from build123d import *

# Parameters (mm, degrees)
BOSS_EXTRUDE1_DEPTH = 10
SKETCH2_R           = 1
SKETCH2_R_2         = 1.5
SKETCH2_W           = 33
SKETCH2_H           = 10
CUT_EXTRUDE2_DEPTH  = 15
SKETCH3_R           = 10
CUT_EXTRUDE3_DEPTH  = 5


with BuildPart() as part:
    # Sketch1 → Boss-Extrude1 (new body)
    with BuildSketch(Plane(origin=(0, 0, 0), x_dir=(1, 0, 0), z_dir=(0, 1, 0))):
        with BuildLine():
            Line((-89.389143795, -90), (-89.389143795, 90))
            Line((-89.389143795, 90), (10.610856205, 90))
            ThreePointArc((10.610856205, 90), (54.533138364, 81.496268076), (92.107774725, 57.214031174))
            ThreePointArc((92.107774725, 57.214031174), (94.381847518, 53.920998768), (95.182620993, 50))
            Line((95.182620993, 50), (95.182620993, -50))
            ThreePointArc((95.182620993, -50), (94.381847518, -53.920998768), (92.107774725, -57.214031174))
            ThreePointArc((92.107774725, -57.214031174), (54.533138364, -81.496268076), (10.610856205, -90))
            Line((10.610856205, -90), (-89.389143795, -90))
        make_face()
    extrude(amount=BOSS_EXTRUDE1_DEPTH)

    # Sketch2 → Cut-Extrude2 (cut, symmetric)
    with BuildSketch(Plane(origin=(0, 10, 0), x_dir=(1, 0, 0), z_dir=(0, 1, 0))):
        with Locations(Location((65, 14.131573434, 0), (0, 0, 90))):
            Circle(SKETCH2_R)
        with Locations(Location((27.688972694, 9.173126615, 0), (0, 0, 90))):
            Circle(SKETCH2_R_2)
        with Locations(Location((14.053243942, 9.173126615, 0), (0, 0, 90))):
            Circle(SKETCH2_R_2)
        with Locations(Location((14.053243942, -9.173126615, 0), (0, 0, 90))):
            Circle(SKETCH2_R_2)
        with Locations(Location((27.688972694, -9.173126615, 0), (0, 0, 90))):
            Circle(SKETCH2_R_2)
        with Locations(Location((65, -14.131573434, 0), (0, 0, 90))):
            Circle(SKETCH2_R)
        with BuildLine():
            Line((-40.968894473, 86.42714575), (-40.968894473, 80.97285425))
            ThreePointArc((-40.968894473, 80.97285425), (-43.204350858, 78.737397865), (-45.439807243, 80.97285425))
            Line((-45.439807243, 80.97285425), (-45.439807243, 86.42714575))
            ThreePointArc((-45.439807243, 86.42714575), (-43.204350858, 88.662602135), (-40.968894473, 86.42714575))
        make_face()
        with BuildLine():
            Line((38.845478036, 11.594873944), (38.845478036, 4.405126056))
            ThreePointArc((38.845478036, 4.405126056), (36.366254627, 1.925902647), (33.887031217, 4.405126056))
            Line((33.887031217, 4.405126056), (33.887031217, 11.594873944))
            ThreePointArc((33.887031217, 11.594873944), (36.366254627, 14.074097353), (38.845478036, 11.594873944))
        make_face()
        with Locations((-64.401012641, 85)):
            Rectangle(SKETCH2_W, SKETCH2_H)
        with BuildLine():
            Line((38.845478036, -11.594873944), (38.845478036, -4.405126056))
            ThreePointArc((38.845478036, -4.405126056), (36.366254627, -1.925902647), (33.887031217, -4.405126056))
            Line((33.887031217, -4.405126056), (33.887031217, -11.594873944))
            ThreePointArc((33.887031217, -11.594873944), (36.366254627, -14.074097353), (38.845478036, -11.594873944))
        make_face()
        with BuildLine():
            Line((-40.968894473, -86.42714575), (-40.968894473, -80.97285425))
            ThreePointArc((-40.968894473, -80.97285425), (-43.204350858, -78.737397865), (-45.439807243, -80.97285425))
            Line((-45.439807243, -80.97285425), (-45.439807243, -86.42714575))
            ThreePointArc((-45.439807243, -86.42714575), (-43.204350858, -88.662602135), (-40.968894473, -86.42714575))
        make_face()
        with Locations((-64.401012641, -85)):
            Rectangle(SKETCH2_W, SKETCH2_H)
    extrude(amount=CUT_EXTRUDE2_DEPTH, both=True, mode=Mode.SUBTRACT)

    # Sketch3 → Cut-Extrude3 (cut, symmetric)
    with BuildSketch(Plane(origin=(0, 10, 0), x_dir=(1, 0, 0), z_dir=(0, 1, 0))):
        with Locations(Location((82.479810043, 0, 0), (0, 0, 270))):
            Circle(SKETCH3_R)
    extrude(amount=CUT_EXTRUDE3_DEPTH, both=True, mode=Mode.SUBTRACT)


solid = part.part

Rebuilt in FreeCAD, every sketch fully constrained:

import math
import FreeCAD as App
import Part
import Sketcher

V = App.Vector

doc = App.newDocument("Part")
params = doc.addObject("Spreadsheet::Sheet", "Params")
for row, (alias, value) in enumerate([
    ("sketch1_radius", "10 mm"),
    ("sketch1_width", "100 mm"),
    ("sketch1_height", "180 mm"),
    ("pad1_length", "10 mm"),
    ("sketch2_diameter", "2 mm"),
    ("sketch2_diameter2", "3 mm"),
    ("sketch2_width", "33 mm"),
    ("sketch2_height", "10 mm"),
    ("pocket1_length", "30 mm"),
    ("sketch3_diameter", "20 mm"),
    ("pocket2_length", "10 mm"),
], start=1):
    params.set(f"A{row}", alias)
    params.set(f"B{row}", "=" + value)
    params.setAlias(f"B{row}", alias)

body = doc.addObject("PartDesign::Body", "Body")

# Sketch on XZ plane
sketch1 = body.newObject("Sketcher::SketchObject", "Sketch")
sketch1.AttachmentSupport = (doc.getObject("XZ_Plane"), [""])
sketch1.MapMode = "FlatFace"
sketch1.addGeometry([
    Part.LineSegment(V(-89, -90, 0), V(-89, 90, 0)),  # 0
    Part.LineSegment(V(-89, 90, 0), V(11, 90, 0)),  # 1
    Part.ArcOfCircle(Part.Circle(V(11, -28, 0), V(0, 0, 1), 118), math.radians(46), math.radians(90)),  # 2
    Part.ArcOfCircle(Part.Circle(V(85, 50, 0), V(0, 0, 1), 10), math.radians(0), math.radians(46)),  # 3
    Part.LineSegment(V(95, 50, 0), V(95, -50, 0)),  # 4
    Part.ArcOfCircle(Part.Circle(V(85, -50, 0), V(0, 0, 1), 10), math.radians(-46), math.radians(0)),  # 5
    Part.ArcOfCircle(Part.Circle(V(11, 28, 0), V(0, 0, 1), 118), math.radians(-90), math.radians(-46)),  # 6
    Part.LineSegment(V(11, -90, 0), V(-89, -90, 0)),  # 7
], False)
sketch1.addConstraint([
    Sketcher.Constraint("Coincident", 0, 2, 1, 1),
    Sketcher.Constraint("Tangent", 1, 2, 2, 2),
    Sketcher.Constraint("Tangent", 2, 1, 3, 2),
    Sketcher.Constraint("Tangent", 3, 1, 4, 1),
    Sketcher.Constraint("Tangent", 4, 2, 5, 2),
    Sketcher.Constraint("Tangent", 5, 1, 6, 2),
    Sketcher.Constraint("Tangent", 6, 1, 7, 1),
    Sketcher.Constraint("Coincident", 7, 2, 0, 1),
    Sketcher.Constraint("Vertical", 0),
    Sketcher.Constraint("Horizontal", 1),
    Sketcher.Constraint("Vertical", 4),
    Sketcher.Constraint("Horizontal", 7),
    Sketcher.Constraint("Equal", 3, 5),
    Sketcher.Constraint("Equal", 2, 6),
    Sketcher.Constraint("Symmetric", 2, 3, 6, 3, -1),
    Sketcher.Constraint("Equal", 7, 4),
    Sketcher.Constraint("Radius", 3, 10.0),
    Sketcher.Constraint("DistanceX", 1, 1, 1, 2, 100.0),
    Sketcher.Constraint("DistanceY", 0, 1, 0, 2, 180.0),
    Sketcher.Constraint("Radius", 2, 117.682468),
    Sketcher.Constraint("DistanceX", -1, 1, 3, 3, 85.182621),
])
sketch1.setExpression("Constraints[16]", "Params.sketch1_radius")
sketch1.setExpression("Constraints[17]", "Params.sketch1_width")
sketch1.setExpression("Constraints[18]", "Params.sketch1_height")
pad1 = body.newObject("PartDesign::Pad", "Pad")
pad1.Profile = sketch1
pad1.setExpression("Length", "Params.pad1_length")
pad1.Reversed = True

# Sketch on XZ plane
sketch2 = body.newObject("Sketcher::SketchObject", "Sketch001")
sketch2.AttachmentSupport = (doc.getObject("XZ_Plane"), [""])
sketch2.MapMode = "FlatFace"
sketch2.AttachmentOffset = App.Placement(V(0, 0, -10), App.Rotation())
sketch2.addGeometry([
    Part.Circle(V(65, -14.1, 0), V(0, 0, 1), 1),  # 0
    Part.Circle(V(27.7, -9.2, 0), V(0, 0, 1), 1.5),  # 1
    Part.Circle(V(14.1, -9.2, 0), V(0, 0, 1), 1.5),  # 2
    Part.Circle(V(14.1, 9.2, 0), V(0, 0, 1), 1.5),  # 3
    Part.Circle(V(27.7, 9.2, 0), V(0, 0, 1), 1.5),  # 4
    Part.Circle(V(65, 14.1, 0), V(0, 0, 1), 1),  # 5
    Part.LineSegment(V(-41, -81, 0), V(-41, -86.4, 0)),  # 6
    Part.ArcOfCircle(Part.Circle(V(-43.2, -86.4, 0), V(0, 0, 1), 2.2), math.radians(180), math.radians(360)),  # 7
    Part.LineSegment(V(-45.4, -86.4, 0), V(-45.4, -81, 0)),  # 8
    Part.ArcOfCircle(Part.Circle(V(-43.2, -81, 0), V(0, 0, 1), 2.2), math.radians(0), math.radians(180)),  # 9
    Part.LineSegment(V(38.8, -4.4, 0), V(38.8, -11.6, 0)),  # 10
    Part.ArcOfCircle(Part.Circle(V(36.4, -11.6, 0), V(0, 0, 1), 2.5), math.radians(-180), math.radians(0)),  # 11
    Part.LineSegment(V(33.9, -11.6, 0), V(33.9, -4.4, 0)),  # 12
    Part.ArcOfCircle(Part.Circle(V(36.4, -4.4, 0), V(0, 0, 1), 2.5), math.radians(0), math.radians(180)),  # 13
    Part.LineSegment(V(-80.9, -90, 0), V(-80.9, -80, 0)),  # 14
    Part.LineSegment(V(-80.9, -80, 0), V(-47.9, -80, 0)),  # 15
    Part.LineSegment(V(-47.9, -80, 0), V(-47.9, -90, 0)),  # 16
    Part.LineSegment(V(-47.9, -90, 0), V(-80.9, -90, 0)),  # 17
    Part.LineSegment(V(38.8, 11.6, 0), V(38.8, 4.4, 0)),  # 18
    Part.ArcOfCircle(Part.Circle(V(36.4, 4.4, 0), V(0, 0, 1), 2.5), math.radians(-180), math.radians(0)),  # 19
    Part.LineSegment(V(33.9, 4.4, 0), V(33.9, 11.6, 0)),  # 20
    Part.ArcOfCircle(Part.Circle(V(36.4, 11.6, 0), V(0, 0, 1), 2.5), math.radians(0), math.radians(180)),  # 21
    Part.LineSegment(V(-41, 86.4, 0), V(-41, 81, 0)),  # 22
    Part.ArcOfCircle(Part.Circle(V(-43.2, 81, 0), V(0, 0, 1), 2.2), math.radians(180), math.radians(360)),  # 23
    Part.LineSegment(V(-45.4, 81, 0), V(-45.4, 86.4, 0)),  # 24
    Part.ArcOfCircle(Part.Circle(V(-43.2, 86.4, 0), V(0, 0, 1), 2.2), math.radians(0), math.radians(180)),  # 25
    Part.LineSegment(V(-80.9, 80, 0), V(-80.9, 90, 0)),  # 26
    Part.LineSegment(V(-80.9, 90, 0), V(-47.9, 90, 0)),  # 27
    Part.LineSegment(V(-47.9, 90, 0), V(-47.9, 80, 0)),  # 28
    Part.LineSegment(V(-47.9, 80, 0), V(-80.9, 80, 0)),  # 29
], False)
sketch2.addConstraint([
    Sketcher.Constraint("Tangent", 6, 2, 7, 2),
    Sketcher.Constraint("Tangent", 7, 1, 8, 1),
    Sketcher.Constraint("Tangent", 8, 2, 9, 2),
    Sketcher.Constraint("Tangent", 9, 1, 6, 1),
    Sketcher.Constraint("Tangent", 10, 2, 11, 2),
    Sketcher.Constraint("Tangent", 11, 1, 12, 1),
    Sketcher.Constraint("Tangent", 12, 2, 13, 2),
    Sketcher.Constraint("Tangent", 13, 1, 10, 1),
    Sketcher.Constraint("Coincident", 14, 2, 15, 1),
    Sketcher.Constraint("Coincident", 15, 2, 16, 1),
    Sketcher.Constraint("Coincident", 16, 2, 17, 1),
    Sketcher.Constraint("Coincident", 17, 2, 14, 1),
    Sketcher.Constraint("Tangent", 18, 2, 19, 2),
    Sketcher.Constraint("Tangent", 19, 1, 20, 1),
    Sketcher.Constraint("Tangent", 20, 2, 21, 2),
    Sketcher.Constraint("Tangent", 21, 1, 18, 1),
    Sketcher.Constraint("Tangent", 22, 2, 23, 2),
    Sketcher.Constraint("Tangent", 23, 1, 24, 1),
    Sketcher.Constraint("Tangent", 24, 2, 25, 2),
    Sketcher.Constraint("Tangent", 25, 1, 22, 1),
    Sketcher.Constraint("Coincident", 26, 2, 27, 1),
    Sketcher.Constraint("Coincident", 27, 2, 28, 1),
    Sketcher.Constraint("Coincident", 28, 2, 29, 1),
    Sketcher.Constraint("Coincident", 29, 2, 26, 1),
    Sketcher.Constraint("Vertical", 6),
    Sketcher.Constraint("Vertical", 8),
    Sketcher.Constraint("Vertical", 10),
    Sketcher.Constraint("Vertical", 12),
    Sketcher.Constraint("Vertical", 14),
    Sketcher.Constraint("Horizontal", 15),
    Sketcher.Constraint("Vertical", 16),
    Sketcher.Constraint("Horizontal", 17),
    Sketcher.Constraint("Vertical", 18),
    Sketcher.Constraint("Vertical", 20),
    Sketcher.Constraint("Vertical", 22),
    Sketcher.Constraint("Vertical", 24),
    Sketcher.Constraint("Vertical", 26),
    Sketcher.Constraint("Horizontal", 27),
    Sketcher.Constraint("Vertical", 28),
    Sketcher.Constraint("Horizontal", 29),
    Sketcher.Constraint("Equal", 1, 2),
    Sketcher.Constraint("Equal", 2, 3),
    Sketcher.Constraint("Equal", 3, 4),
    Sketcher.Constraint("Equal", 0, 5),
    Sketcher.Constraint("Equal", 13, 19),
    Sketcher.Constraint("Equal", 9, 23),
    Sketcher.Constraint("Symmetric", 2, 3, 3, 3, -1),
    Sketcher.Constraint("Symmetric", 1, 3, 4, 3, -1),
    Sketcher.Constraint("Symmetric", 0, 3, 5, 3, -1),
    Sketcher.Constraint("Symmetric", 13, 3, 19, 3, -1),
    Sketcher.Constraint("Symmetric", 9, 3, 23, 3, -1),
    Sketcher.Constraint("Symmetric", 17, 2, 26, 2, -1),
    Sketcher.Constraint("Symmetric", 15, 2, 28, 2, -1),
    Sketcher.Constraint("Horizontal", 1, 3, 2, 3),
    Sketcher.Constraint("Equal", 12, 18),
    Sketcher.Constraint("Equal", 8, 22),
    Sketcher.Constraint("Diameter", 0, 2.0),
    Sketcher.Constraint("Diameter", 1, 3.0),
    Sketcher.Constraint("DistanceX", 15, 1, 15, 2, 33.0),
    Sketcher.Constraint("DistanceY", 14, 1, 14, 2, 10.0),
    Sketcher.Constraint("DistanceX", -1, 1, 0, 3, 65.0),
    Sketcher.Constraint("DistanceY", 14, 2, -1, 1, 80.0),
    Sketcher.Constraint("DistanceY", 11, 3, 19, 3, 16.0),
    Sketcher.Constraint("Radius", 7, 2.235456),
    Sketcher.Constraint("Radius", 11, 2.479223),
    Sketcher.Constraint("DistanceY", 11, 3, 4, 3, 20.768001),
    Sketcher.Constraint("DistanceY", 6, 2, 6, 1, 5.454291),
    Sketcher.Constraint("DistanceY", 0, 3, 3, 3, 23.3047),
    Sketcher.Constraint("DistanceY", 10, 2, 10, 1, 7.189748),
    Sketcher.Constraint("DistanceX", 7, 3, -1, 1, 43.204351),
    Sketcher.Constraint("DistanceX", -1, 1, 10, 2, 38.845478),
    Sketcher.Constraint("DistanceX", 2, 3, 1, 3, 13.635729),
    Sketcher.Constraint("DistanceY", 7, 3, 2, 3, 77.254019),
    Sketcher.Constraint("DistanceX", 1, 3, 11, 3, 8.677282),
    Sketcher.Constraint("DistanceX", 14, 2, 9, 3, 37.696662),
])
sketch2.setExpression("Constraints[56]", "Params.sketch2_diameter")
sketch2.setExpression("Constraints[57]", "Params.sketch2_diameter2")
sketch2.setExpression("Constraints[58]", "Params.sketch2_width")
sketch2.setExpression("Constraints[59]", "Params.sketch2_height")
pocket1 = body.newObject("PartDesign::Pocket", "Pocket")
pocket1.Profile = sketch2
pocket1.setExpression("Length", "Params.pocket1_length")
pocket1.Midplane = True

# Sketch on XZ plane
sketch3 = body.newObject("Sketcher::SketchObject", "Sketch002")
sketch3.AttachmentSupport = (doc.getObject("XZ_Plane"), [""])
sketch3.MapMode = "FlatFace"
sketch3.AttachmentOffset = App.Placement(V(0, 0, -10), App.Rotation())
sketch3.addGeometry(Part.Circle(V(82, 0, 0), V(0, 0, 1), 10), False)
sketch3.addConstraint([
    Sketcher.Constraint("PointOnObject", 0, 3, -1),
    Sketcher.Constraint("Diameter", 0, 20.0),
    Sketcher.Constraint("DistanceX", -1, 1, 0, 3, 82.47981),
])
sketch3.setExpression("Constraints[1]", "Params.sketch3_diameter")
pocket2 = body.newObject("PartDesign::Pocket", "Pocket001")
pocket2.Profile = sketch3
pocket2.setExpression("Length", "Params.pocket2_length")
pocket2.Midplane = True

doc.recompute()
